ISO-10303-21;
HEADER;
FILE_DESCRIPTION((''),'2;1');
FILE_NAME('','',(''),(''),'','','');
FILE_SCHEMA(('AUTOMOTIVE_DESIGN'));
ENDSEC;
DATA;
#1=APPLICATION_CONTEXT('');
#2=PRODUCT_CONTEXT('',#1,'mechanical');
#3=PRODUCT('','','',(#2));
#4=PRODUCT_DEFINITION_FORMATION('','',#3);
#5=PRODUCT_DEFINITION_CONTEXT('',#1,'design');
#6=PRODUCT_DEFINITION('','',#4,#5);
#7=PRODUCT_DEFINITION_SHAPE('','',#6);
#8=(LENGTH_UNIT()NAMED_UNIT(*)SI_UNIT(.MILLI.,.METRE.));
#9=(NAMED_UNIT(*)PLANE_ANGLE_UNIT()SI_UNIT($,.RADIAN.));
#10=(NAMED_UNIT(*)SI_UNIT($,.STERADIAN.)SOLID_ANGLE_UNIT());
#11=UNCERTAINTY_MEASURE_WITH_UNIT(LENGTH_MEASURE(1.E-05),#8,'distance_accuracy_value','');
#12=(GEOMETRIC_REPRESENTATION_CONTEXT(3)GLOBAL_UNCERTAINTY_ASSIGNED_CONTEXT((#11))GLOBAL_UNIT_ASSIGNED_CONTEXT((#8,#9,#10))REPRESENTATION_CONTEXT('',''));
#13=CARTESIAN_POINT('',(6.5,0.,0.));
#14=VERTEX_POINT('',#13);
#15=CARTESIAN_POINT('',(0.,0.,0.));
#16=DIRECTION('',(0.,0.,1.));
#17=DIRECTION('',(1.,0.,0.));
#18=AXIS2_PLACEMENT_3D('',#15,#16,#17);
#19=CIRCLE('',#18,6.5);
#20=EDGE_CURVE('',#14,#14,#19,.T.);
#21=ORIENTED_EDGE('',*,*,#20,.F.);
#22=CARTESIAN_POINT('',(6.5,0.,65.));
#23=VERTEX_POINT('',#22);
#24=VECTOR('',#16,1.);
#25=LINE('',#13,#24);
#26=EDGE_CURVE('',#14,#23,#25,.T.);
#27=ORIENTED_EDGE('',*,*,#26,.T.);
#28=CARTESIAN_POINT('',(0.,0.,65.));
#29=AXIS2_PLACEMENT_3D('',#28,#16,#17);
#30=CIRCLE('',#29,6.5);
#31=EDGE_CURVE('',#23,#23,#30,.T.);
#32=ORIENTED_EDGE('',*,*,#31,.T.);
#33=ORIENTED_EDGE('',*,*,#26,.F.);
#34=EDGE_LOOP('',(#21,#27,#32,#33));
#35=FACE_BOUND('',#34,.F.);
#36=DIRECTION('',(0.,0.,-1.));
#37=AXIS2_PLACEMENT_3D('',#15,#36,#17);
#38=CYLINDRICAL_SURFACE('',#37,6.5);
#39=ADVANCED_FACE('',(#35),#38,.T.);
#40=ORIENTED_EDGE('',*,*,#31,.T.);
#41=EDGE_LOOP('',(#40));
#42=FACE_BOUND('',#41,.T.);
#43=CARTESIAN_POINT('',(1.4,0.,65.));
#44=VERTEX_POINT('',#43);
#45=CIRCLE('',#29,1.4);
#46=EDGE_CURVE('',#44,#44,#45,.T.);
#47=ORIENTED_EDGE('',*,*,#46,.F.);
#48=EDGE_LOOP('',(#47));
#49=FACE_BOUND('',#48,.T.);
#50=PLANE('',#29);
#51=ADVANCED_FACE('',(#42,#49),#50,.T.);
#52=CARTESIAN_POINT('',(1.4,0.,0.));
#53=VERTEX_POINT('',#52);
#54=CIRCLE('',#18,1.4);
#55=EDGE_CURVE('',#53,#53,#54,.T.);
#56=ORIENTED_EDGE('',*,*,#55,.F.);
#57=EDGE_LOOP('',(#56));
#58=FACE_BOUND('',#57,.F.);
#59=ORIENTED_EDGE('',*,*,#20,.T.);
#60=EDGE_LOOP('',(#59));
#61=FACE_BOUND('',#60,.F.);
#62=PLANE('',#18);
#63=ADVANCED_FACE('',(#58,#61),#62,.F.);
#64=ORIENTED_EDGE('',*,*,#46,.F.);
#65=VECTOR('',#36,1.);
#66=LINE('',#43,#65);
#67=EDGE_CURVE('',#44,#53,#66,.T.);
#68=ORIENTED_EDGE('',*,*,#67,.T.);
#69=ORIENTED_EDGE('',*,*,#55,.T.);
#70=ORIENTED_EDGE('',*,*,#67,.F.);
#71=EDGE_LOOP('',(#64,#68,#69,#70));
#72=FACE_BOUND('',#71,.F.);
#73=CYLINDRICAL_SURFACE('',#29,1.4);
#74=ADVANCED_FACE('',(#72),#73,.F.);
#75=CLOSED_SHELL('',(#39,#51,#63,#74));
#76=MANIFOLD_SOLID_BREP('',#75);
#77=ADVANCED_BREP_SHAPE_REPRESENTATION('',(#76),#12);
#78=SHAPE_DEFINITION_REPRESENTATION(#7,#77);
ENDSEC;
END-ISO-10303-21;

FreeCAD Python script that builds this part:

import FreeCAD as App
import Part
import Sketcher
from FreeCAD import Vector

doc = App.newDocument("Part")
params = doc.addObject("Spreadsheet::Sheet", "Params")
for row, (alias, value) in enumerate([
    ("sketch1_diameter", "13 mm"),
    ("pad1_length", "65 mm"),
    ("sketch2_diameter", "2.8 mm"),
], start=1):
    params.set(f"A{row}", alias)
    params.set(f"B{row}", "=" + value)
    params.setAlias(f"B{row}", alias)

body = doc.addObject("PartDesign::Body", "Body")

# Sketch on XY plane
sketch1 = body.newObject("Sketcher::SketchObject", "Sketch")
sketch1.AttachmentSupport = (doc.getObject("XY_Plane"), [""])
sketch1.MapMode = "FlatFace"
sketch1.addGeometry(Part.Circle(Vector(0, 0, 0), Vector(0, 0, 1), 6), False)
sketch1.addConstraint([
    Sketcher.Constraint("Coincident", 0, 3, -1, 1),
    Sketcher.Constraint("Diameter", 0, 13.0),
])
sketch1.setExpression("Constraints[1]", "Params.sketch1_diameter")
pad1 = body.newObject("PartDesign::Pad", "Pad")
pad1.Profile = sketch1
pad1.setExpression("Length", "Params.pad1_length")

# Sketch on XY plane
sketch2 = body.newObject("Sketcher::SketchObject", "Sketch001")
sketch2.AttachmentSupport = (doc.getObject("XY_Plane"), [""])
sketch2.MapMode = "FlatFace"
sketch2.AttachmentOffset = App.Placement(Vector(0, 0, 65), App.Rotation())
sketch2.addGeometry(Part.Circle(Vector(0, 0, 0), Vector(0, 0, 1), 1.4), False)
sketch2.addConstraint([
    Sketcher.Constraint("Coincident", 0, 3, -1, 1),
    Sketcher.Constraint("Diameter", 0, 2.8),
])
sketch2.setExpression("Constraints[1]", "Params.sketch2_diameter")
pocket1 = body.newObject("PartDesign::Pocket", "Pocket")
pocket1.Profile = sketch2
pocket1.Type = "ThroughAll"

doc.recompute()
